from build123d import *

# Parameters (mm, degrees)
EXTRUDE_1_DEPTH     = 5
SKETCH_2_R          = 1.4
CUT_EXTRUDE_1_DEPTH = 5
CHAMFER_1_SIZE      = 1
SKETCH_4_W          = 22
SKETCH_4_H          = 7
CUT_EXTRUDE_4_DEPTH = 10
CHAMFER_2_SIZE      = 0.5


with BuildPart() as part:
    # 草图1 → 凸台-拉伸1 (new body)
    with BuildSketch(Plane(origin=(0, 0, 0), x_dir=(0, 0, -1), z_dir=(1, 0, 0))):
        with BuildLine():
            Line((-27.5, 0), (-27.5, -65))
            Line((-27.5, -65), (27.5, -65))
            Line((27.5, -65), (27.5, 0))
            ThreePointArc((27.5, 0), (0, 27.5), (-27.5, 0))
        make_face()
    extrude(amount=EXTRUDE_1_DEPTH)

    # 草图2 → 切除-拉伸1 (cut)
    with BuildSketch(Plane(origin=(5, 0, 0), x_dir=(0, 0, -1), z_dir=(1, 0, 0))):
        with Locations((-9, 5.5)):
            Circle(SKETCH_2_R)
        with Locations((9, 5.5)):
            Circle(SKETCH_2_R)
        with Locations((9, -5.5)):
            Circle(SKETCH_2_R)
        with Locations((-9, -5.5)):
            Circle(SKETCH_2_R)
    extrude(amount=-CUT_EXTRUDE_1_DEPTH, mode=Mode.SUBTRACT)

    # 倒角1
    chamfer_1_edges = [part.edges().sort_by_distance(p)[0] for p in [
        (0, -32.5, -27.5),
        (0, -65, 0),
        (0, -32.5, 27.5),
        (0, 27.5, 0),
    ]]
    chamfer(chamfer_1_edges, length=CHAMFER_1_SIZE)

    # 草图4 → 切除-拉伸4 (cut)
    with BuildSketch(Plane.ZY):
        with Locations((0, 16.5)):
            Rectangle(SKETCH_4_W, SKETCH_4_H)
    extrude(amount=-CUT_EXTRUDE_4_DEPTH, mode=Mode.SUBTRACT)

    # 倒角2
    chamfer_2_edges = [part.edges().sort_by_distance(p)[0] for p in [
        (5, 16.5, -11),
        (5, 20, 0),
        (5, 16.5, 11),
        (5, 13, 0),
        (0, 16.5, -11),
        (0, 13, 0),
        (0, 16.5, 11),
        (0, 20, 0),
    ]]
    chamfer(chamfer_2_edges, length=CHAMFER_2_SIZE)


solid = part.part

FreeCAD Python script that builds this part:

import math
import FreeCAD as App
import Part
import Sketcher
from FreeCAD import Vector


def edges_at(feature, points):
    """Names of the edges that pass closest to the given points."""
    edges = feature.Shape.Edges
    near = lambda p: min(range(len(edges)), key=lambda i: edges[i].distToShape(Part.Vertex(*p))[0])
    return sorted({f"Edge{near(p) + 1}" for p in points})

doc = App.newDocument("Part")
params = doc.addObject("Spreadsheet::Sheet", "Params")
for row, (alias, value) in enumerate([
    ("sketch1_radius", "27.5 mm"),
    ("sketch1_width", "65 mm"),
    ("pad1_length", "5 mm"),
    ("sketch2_diameter", "2.8 mm"),
    ("pocket1_length", "5 mm"),
    ("chamfer_size", "1 mm"),
    ("sketch3_width", "7 mm"),
    ("sketch3_height", "22 mm"),
    ("pocket2_length", "10 mm"),
    ("chamfer2_size", "0.5 mm"),
], start=1):
    params.set(f"A{row}", alias)
    params.set(f"B{row}", "=" + value)
    params.setAlias(f"B{row}", alias)

body = doc.addObject("PartDesign::Body", "Body")

sketch1 = body.newObject("Sketcher::SketchObject", "Sketch")
sketch1.AttachmentSupport = (doc.getObject("YZ_Plane"), [""])
sketch1.MapMode = "FlatFace"
sketch1.addGeometry(Part.LineSegment(Vector(0, 28, 0), Vector(-65, 28, 0)), False)
sketch1.addGeometry(Part.LineSegment(Vector(-65, 28, 0), Vector(-65, -28, 0)), False)
sketch1.addGeometry(Part.LineSegment(Vector(-65, -28, 0), Vector(0, -28, 0)), False)
sketch1.addGeometry(Part.ArcOfCircle(Part.Circle(Vector(0, 0, 0), Vector(0, 0, 1), 28), math.radians(-90), math.radians(90)), False)
sketch1.addConstraint(Sketcher.Constraint("Coincident", 0, 2, 1, 1))
sketch1.addConstraint(Sketcher.Constraint("Coincident", 1, 2, 2, 1))
sketch1.addConstraint(Sketcher.Constraint("Tangent", 2, 2, 3, 1))
sketch1.addConstraint(Sketcher.Constraint("Tangent", 3, 2, 0, 1))
sketch1.addConstraint(Sketcher.Constraint("Horizontal", 0))
sketch1.addConstraint(Sketcher.Constraint("Vertical", 1))
sketch1.addConstraint(Sketcher.Constraint("Horizontal", 2))
sketch1.addConstraint(Sketcher.Constraint("Coincident", 3, 3, -1, 1))
sketch1.addConstraint(Sketcher.Constraint("Radius", 3, 27.5))
sketch1.addConstraint(Sketcher.Constraint("DistanceX", 0, 2, 0, 1, 65.0))
sketch1.setExpression("Constraints[8]", "Params.sketch1_radius")
sketch1.setExpression("Constraints[9]", "Params.sketch1_width")
pad1 = body.newObject("PartDesign::Pad", "Pad")
pad1.Profile = sketch1
pad1.setExpression("Length", "Params.pad1_length")

sketch2 = body.newObject("Sketcher::SketchObject", "Sketch001")
sketch2.AttachmentSupport = (doc.getObject("YZ_Plane"), [""])
sketch2.MapMode = "FlatFace"
sketch2.AttachmentOffset = App.Placement(Vector(0, 0, 5), App.Rotation())
sketch2.addGeometry(Part.Circle(Vector(5.5, 9, 0), Vector(0, 0, 1), 1.4), False)
sketch2.addGeometry(Part.Circle(Vector(5.5, -9, 0), Vector(0, 0, 1), 1.4), False)
sketch2.addGeometry(Part.Circle(Vector(-5.5, -9, 0), Vector(0, 0, 1), 1.4), False)
sketch2.addGeometry(Part.Circle(Vector(-5.5, 9, 0), Vector(0, 0, 1), 1.4), False)
sketch2.addConstraint(Sketcher.Constraint("Equal", 0, 1))
sketch2.addConstraint(Sketcher.Constraint("Equal", 1, 2))
sketch2.addConstraint(Sketcher.Constraint("Equal", 2, 3))
sketch2.addConstraint(Sketcher.Constraint("Symmetric", 0, 3, 2, 3, -1, 1))
sketch2.addConstraint(Sketcher.Constraint("Symmetric", 1, 3, 3, 3, -1, 1))
sketch2.addConstraint(Sketcher.Constraint("Symmetric", 1, 3, 2, 3, -2))
sketch2.addConstraint(Sketcher.Constraint("Diameter", 0, 2.8))
sketch2.addConstraint(Sketcher.Constraint("DistanceY", -1, 1, 0, 3, 9.0))
sketch2.addConstraint(Sketcher.Constraint("DistanceX", 2, 3, 1, 3, 11.0))
sketch2.setExpression("Constraints[6]", "Params.sketch2_diameter")
pocket1 = body.newObject("PartDesign::Pocket", "Pocket")
pocket1.Profile = sketch2
pocket1.setExpression("Length", "Params.pocket1_length")
doc.recompute()

chamfer = body.newObject("PartDesign::Chamfer", "Chamfer")
chamfer.Base = (pocket1, edges_at(pocket1, [
    (0, -32.5, -27.5),
    (0, -65, 0),
    (0, -32.5, 27.5),
    (0, 27.5, 0),
]))
chamfer.setExpression("Size", "Params.chamfer_size")

sketch3 = body.newObject("Sketcher::SketchObject", "Sketch002")
sketch3.AttachmentSupport = (doc.getObject("YZ_Plane"), [""])
sketch3.MapMode = "FlatFace"
sketch3.addGeometry(Part.LineSegment(Vector(20, -11, 0), Vector(13, -11, 0)), False)
sketch3.addGeometry(Part.LineSegment(Vector(13, -11, 0), Vector(13, 11, 0)), False)
sketch3.addGeometry(Part.LineSegment(Vector(13, 11, 0), Vector(20, 11, 0)), False)
sketch3.addGeometry(Part.LineSegment(Vector(20, 11, 0), Vector(20, -11, 0)), False)
sketch3.addConstraint(Sketcher.Constraint("Coincident", 0, 2, 1, 1))
sketch3.addConstraint(Sketcher.Constraint("Coincident", 1, 2, 2, 1))
sketch3.addConstraint(Sketcher.Constraint("Coincident", 2, 2, 3, 1))
sketch3.addConstraint(Sketcher.Constraint("Coincident", 3, 2, 0, 1))
sketch3.addConstraint(Sketcher.Constraint("Horizontal", 0))
sketch3.addConstraint(Sketcher.Constraint("Vertical", 1))
sketch3.addConstraint(Sketcher.Constraint("Horizontal", 2))
sketch3.addConstraint(Sketcher.Constraint("Vertical", 3))
sketch3.addConstraint(Sketcher.Constraint("DistanceX", 0, 2, 0, 1, 7.0))
sketch3.addConstraint(Sketcher.Constraint("DistanceY", 1, 1, 1, 2, 22.0))
sketch3.addConstraint(Sketcher.Constraint("DistanceX", -1, 1, 0, 2, 13.0))
sketch3.addConstraint(Sketcher.Constraint("DistanceY", 0, 2, -1, 1, 11.0))
sketch3.setExpression("Constraints[8]", "Params.sketch3_width")
sketch3.setExpression("Constraints[9]", "Params.sketch3_height")
pocket2 = body.newObject("PartDesign::Pocket", "Pocket001")
pocket2.Profile = sketch3
pocket2.setExpression("Length", "Params.pocket2_length")
pocket2.Reversed = True
doc.recompute()

chamfer2 = body.newObject("PartDesign::Chamfer", "Chamfer001")
chamfer2.Base = (pocket2, edges_at(pocket2, [
    (5, 16.5, -11),
    (5, 20, 0),
    (5, 16.5, 11),
    (5, 13, 0),
    (0, 16.5, -11),
    (0, 13, 0),
    (0, 16.5, 11),
    (0, 20, 0),
]))
chamfer2.setExpression("Size", "Params.chamfer2_size")

doc.recompute()
